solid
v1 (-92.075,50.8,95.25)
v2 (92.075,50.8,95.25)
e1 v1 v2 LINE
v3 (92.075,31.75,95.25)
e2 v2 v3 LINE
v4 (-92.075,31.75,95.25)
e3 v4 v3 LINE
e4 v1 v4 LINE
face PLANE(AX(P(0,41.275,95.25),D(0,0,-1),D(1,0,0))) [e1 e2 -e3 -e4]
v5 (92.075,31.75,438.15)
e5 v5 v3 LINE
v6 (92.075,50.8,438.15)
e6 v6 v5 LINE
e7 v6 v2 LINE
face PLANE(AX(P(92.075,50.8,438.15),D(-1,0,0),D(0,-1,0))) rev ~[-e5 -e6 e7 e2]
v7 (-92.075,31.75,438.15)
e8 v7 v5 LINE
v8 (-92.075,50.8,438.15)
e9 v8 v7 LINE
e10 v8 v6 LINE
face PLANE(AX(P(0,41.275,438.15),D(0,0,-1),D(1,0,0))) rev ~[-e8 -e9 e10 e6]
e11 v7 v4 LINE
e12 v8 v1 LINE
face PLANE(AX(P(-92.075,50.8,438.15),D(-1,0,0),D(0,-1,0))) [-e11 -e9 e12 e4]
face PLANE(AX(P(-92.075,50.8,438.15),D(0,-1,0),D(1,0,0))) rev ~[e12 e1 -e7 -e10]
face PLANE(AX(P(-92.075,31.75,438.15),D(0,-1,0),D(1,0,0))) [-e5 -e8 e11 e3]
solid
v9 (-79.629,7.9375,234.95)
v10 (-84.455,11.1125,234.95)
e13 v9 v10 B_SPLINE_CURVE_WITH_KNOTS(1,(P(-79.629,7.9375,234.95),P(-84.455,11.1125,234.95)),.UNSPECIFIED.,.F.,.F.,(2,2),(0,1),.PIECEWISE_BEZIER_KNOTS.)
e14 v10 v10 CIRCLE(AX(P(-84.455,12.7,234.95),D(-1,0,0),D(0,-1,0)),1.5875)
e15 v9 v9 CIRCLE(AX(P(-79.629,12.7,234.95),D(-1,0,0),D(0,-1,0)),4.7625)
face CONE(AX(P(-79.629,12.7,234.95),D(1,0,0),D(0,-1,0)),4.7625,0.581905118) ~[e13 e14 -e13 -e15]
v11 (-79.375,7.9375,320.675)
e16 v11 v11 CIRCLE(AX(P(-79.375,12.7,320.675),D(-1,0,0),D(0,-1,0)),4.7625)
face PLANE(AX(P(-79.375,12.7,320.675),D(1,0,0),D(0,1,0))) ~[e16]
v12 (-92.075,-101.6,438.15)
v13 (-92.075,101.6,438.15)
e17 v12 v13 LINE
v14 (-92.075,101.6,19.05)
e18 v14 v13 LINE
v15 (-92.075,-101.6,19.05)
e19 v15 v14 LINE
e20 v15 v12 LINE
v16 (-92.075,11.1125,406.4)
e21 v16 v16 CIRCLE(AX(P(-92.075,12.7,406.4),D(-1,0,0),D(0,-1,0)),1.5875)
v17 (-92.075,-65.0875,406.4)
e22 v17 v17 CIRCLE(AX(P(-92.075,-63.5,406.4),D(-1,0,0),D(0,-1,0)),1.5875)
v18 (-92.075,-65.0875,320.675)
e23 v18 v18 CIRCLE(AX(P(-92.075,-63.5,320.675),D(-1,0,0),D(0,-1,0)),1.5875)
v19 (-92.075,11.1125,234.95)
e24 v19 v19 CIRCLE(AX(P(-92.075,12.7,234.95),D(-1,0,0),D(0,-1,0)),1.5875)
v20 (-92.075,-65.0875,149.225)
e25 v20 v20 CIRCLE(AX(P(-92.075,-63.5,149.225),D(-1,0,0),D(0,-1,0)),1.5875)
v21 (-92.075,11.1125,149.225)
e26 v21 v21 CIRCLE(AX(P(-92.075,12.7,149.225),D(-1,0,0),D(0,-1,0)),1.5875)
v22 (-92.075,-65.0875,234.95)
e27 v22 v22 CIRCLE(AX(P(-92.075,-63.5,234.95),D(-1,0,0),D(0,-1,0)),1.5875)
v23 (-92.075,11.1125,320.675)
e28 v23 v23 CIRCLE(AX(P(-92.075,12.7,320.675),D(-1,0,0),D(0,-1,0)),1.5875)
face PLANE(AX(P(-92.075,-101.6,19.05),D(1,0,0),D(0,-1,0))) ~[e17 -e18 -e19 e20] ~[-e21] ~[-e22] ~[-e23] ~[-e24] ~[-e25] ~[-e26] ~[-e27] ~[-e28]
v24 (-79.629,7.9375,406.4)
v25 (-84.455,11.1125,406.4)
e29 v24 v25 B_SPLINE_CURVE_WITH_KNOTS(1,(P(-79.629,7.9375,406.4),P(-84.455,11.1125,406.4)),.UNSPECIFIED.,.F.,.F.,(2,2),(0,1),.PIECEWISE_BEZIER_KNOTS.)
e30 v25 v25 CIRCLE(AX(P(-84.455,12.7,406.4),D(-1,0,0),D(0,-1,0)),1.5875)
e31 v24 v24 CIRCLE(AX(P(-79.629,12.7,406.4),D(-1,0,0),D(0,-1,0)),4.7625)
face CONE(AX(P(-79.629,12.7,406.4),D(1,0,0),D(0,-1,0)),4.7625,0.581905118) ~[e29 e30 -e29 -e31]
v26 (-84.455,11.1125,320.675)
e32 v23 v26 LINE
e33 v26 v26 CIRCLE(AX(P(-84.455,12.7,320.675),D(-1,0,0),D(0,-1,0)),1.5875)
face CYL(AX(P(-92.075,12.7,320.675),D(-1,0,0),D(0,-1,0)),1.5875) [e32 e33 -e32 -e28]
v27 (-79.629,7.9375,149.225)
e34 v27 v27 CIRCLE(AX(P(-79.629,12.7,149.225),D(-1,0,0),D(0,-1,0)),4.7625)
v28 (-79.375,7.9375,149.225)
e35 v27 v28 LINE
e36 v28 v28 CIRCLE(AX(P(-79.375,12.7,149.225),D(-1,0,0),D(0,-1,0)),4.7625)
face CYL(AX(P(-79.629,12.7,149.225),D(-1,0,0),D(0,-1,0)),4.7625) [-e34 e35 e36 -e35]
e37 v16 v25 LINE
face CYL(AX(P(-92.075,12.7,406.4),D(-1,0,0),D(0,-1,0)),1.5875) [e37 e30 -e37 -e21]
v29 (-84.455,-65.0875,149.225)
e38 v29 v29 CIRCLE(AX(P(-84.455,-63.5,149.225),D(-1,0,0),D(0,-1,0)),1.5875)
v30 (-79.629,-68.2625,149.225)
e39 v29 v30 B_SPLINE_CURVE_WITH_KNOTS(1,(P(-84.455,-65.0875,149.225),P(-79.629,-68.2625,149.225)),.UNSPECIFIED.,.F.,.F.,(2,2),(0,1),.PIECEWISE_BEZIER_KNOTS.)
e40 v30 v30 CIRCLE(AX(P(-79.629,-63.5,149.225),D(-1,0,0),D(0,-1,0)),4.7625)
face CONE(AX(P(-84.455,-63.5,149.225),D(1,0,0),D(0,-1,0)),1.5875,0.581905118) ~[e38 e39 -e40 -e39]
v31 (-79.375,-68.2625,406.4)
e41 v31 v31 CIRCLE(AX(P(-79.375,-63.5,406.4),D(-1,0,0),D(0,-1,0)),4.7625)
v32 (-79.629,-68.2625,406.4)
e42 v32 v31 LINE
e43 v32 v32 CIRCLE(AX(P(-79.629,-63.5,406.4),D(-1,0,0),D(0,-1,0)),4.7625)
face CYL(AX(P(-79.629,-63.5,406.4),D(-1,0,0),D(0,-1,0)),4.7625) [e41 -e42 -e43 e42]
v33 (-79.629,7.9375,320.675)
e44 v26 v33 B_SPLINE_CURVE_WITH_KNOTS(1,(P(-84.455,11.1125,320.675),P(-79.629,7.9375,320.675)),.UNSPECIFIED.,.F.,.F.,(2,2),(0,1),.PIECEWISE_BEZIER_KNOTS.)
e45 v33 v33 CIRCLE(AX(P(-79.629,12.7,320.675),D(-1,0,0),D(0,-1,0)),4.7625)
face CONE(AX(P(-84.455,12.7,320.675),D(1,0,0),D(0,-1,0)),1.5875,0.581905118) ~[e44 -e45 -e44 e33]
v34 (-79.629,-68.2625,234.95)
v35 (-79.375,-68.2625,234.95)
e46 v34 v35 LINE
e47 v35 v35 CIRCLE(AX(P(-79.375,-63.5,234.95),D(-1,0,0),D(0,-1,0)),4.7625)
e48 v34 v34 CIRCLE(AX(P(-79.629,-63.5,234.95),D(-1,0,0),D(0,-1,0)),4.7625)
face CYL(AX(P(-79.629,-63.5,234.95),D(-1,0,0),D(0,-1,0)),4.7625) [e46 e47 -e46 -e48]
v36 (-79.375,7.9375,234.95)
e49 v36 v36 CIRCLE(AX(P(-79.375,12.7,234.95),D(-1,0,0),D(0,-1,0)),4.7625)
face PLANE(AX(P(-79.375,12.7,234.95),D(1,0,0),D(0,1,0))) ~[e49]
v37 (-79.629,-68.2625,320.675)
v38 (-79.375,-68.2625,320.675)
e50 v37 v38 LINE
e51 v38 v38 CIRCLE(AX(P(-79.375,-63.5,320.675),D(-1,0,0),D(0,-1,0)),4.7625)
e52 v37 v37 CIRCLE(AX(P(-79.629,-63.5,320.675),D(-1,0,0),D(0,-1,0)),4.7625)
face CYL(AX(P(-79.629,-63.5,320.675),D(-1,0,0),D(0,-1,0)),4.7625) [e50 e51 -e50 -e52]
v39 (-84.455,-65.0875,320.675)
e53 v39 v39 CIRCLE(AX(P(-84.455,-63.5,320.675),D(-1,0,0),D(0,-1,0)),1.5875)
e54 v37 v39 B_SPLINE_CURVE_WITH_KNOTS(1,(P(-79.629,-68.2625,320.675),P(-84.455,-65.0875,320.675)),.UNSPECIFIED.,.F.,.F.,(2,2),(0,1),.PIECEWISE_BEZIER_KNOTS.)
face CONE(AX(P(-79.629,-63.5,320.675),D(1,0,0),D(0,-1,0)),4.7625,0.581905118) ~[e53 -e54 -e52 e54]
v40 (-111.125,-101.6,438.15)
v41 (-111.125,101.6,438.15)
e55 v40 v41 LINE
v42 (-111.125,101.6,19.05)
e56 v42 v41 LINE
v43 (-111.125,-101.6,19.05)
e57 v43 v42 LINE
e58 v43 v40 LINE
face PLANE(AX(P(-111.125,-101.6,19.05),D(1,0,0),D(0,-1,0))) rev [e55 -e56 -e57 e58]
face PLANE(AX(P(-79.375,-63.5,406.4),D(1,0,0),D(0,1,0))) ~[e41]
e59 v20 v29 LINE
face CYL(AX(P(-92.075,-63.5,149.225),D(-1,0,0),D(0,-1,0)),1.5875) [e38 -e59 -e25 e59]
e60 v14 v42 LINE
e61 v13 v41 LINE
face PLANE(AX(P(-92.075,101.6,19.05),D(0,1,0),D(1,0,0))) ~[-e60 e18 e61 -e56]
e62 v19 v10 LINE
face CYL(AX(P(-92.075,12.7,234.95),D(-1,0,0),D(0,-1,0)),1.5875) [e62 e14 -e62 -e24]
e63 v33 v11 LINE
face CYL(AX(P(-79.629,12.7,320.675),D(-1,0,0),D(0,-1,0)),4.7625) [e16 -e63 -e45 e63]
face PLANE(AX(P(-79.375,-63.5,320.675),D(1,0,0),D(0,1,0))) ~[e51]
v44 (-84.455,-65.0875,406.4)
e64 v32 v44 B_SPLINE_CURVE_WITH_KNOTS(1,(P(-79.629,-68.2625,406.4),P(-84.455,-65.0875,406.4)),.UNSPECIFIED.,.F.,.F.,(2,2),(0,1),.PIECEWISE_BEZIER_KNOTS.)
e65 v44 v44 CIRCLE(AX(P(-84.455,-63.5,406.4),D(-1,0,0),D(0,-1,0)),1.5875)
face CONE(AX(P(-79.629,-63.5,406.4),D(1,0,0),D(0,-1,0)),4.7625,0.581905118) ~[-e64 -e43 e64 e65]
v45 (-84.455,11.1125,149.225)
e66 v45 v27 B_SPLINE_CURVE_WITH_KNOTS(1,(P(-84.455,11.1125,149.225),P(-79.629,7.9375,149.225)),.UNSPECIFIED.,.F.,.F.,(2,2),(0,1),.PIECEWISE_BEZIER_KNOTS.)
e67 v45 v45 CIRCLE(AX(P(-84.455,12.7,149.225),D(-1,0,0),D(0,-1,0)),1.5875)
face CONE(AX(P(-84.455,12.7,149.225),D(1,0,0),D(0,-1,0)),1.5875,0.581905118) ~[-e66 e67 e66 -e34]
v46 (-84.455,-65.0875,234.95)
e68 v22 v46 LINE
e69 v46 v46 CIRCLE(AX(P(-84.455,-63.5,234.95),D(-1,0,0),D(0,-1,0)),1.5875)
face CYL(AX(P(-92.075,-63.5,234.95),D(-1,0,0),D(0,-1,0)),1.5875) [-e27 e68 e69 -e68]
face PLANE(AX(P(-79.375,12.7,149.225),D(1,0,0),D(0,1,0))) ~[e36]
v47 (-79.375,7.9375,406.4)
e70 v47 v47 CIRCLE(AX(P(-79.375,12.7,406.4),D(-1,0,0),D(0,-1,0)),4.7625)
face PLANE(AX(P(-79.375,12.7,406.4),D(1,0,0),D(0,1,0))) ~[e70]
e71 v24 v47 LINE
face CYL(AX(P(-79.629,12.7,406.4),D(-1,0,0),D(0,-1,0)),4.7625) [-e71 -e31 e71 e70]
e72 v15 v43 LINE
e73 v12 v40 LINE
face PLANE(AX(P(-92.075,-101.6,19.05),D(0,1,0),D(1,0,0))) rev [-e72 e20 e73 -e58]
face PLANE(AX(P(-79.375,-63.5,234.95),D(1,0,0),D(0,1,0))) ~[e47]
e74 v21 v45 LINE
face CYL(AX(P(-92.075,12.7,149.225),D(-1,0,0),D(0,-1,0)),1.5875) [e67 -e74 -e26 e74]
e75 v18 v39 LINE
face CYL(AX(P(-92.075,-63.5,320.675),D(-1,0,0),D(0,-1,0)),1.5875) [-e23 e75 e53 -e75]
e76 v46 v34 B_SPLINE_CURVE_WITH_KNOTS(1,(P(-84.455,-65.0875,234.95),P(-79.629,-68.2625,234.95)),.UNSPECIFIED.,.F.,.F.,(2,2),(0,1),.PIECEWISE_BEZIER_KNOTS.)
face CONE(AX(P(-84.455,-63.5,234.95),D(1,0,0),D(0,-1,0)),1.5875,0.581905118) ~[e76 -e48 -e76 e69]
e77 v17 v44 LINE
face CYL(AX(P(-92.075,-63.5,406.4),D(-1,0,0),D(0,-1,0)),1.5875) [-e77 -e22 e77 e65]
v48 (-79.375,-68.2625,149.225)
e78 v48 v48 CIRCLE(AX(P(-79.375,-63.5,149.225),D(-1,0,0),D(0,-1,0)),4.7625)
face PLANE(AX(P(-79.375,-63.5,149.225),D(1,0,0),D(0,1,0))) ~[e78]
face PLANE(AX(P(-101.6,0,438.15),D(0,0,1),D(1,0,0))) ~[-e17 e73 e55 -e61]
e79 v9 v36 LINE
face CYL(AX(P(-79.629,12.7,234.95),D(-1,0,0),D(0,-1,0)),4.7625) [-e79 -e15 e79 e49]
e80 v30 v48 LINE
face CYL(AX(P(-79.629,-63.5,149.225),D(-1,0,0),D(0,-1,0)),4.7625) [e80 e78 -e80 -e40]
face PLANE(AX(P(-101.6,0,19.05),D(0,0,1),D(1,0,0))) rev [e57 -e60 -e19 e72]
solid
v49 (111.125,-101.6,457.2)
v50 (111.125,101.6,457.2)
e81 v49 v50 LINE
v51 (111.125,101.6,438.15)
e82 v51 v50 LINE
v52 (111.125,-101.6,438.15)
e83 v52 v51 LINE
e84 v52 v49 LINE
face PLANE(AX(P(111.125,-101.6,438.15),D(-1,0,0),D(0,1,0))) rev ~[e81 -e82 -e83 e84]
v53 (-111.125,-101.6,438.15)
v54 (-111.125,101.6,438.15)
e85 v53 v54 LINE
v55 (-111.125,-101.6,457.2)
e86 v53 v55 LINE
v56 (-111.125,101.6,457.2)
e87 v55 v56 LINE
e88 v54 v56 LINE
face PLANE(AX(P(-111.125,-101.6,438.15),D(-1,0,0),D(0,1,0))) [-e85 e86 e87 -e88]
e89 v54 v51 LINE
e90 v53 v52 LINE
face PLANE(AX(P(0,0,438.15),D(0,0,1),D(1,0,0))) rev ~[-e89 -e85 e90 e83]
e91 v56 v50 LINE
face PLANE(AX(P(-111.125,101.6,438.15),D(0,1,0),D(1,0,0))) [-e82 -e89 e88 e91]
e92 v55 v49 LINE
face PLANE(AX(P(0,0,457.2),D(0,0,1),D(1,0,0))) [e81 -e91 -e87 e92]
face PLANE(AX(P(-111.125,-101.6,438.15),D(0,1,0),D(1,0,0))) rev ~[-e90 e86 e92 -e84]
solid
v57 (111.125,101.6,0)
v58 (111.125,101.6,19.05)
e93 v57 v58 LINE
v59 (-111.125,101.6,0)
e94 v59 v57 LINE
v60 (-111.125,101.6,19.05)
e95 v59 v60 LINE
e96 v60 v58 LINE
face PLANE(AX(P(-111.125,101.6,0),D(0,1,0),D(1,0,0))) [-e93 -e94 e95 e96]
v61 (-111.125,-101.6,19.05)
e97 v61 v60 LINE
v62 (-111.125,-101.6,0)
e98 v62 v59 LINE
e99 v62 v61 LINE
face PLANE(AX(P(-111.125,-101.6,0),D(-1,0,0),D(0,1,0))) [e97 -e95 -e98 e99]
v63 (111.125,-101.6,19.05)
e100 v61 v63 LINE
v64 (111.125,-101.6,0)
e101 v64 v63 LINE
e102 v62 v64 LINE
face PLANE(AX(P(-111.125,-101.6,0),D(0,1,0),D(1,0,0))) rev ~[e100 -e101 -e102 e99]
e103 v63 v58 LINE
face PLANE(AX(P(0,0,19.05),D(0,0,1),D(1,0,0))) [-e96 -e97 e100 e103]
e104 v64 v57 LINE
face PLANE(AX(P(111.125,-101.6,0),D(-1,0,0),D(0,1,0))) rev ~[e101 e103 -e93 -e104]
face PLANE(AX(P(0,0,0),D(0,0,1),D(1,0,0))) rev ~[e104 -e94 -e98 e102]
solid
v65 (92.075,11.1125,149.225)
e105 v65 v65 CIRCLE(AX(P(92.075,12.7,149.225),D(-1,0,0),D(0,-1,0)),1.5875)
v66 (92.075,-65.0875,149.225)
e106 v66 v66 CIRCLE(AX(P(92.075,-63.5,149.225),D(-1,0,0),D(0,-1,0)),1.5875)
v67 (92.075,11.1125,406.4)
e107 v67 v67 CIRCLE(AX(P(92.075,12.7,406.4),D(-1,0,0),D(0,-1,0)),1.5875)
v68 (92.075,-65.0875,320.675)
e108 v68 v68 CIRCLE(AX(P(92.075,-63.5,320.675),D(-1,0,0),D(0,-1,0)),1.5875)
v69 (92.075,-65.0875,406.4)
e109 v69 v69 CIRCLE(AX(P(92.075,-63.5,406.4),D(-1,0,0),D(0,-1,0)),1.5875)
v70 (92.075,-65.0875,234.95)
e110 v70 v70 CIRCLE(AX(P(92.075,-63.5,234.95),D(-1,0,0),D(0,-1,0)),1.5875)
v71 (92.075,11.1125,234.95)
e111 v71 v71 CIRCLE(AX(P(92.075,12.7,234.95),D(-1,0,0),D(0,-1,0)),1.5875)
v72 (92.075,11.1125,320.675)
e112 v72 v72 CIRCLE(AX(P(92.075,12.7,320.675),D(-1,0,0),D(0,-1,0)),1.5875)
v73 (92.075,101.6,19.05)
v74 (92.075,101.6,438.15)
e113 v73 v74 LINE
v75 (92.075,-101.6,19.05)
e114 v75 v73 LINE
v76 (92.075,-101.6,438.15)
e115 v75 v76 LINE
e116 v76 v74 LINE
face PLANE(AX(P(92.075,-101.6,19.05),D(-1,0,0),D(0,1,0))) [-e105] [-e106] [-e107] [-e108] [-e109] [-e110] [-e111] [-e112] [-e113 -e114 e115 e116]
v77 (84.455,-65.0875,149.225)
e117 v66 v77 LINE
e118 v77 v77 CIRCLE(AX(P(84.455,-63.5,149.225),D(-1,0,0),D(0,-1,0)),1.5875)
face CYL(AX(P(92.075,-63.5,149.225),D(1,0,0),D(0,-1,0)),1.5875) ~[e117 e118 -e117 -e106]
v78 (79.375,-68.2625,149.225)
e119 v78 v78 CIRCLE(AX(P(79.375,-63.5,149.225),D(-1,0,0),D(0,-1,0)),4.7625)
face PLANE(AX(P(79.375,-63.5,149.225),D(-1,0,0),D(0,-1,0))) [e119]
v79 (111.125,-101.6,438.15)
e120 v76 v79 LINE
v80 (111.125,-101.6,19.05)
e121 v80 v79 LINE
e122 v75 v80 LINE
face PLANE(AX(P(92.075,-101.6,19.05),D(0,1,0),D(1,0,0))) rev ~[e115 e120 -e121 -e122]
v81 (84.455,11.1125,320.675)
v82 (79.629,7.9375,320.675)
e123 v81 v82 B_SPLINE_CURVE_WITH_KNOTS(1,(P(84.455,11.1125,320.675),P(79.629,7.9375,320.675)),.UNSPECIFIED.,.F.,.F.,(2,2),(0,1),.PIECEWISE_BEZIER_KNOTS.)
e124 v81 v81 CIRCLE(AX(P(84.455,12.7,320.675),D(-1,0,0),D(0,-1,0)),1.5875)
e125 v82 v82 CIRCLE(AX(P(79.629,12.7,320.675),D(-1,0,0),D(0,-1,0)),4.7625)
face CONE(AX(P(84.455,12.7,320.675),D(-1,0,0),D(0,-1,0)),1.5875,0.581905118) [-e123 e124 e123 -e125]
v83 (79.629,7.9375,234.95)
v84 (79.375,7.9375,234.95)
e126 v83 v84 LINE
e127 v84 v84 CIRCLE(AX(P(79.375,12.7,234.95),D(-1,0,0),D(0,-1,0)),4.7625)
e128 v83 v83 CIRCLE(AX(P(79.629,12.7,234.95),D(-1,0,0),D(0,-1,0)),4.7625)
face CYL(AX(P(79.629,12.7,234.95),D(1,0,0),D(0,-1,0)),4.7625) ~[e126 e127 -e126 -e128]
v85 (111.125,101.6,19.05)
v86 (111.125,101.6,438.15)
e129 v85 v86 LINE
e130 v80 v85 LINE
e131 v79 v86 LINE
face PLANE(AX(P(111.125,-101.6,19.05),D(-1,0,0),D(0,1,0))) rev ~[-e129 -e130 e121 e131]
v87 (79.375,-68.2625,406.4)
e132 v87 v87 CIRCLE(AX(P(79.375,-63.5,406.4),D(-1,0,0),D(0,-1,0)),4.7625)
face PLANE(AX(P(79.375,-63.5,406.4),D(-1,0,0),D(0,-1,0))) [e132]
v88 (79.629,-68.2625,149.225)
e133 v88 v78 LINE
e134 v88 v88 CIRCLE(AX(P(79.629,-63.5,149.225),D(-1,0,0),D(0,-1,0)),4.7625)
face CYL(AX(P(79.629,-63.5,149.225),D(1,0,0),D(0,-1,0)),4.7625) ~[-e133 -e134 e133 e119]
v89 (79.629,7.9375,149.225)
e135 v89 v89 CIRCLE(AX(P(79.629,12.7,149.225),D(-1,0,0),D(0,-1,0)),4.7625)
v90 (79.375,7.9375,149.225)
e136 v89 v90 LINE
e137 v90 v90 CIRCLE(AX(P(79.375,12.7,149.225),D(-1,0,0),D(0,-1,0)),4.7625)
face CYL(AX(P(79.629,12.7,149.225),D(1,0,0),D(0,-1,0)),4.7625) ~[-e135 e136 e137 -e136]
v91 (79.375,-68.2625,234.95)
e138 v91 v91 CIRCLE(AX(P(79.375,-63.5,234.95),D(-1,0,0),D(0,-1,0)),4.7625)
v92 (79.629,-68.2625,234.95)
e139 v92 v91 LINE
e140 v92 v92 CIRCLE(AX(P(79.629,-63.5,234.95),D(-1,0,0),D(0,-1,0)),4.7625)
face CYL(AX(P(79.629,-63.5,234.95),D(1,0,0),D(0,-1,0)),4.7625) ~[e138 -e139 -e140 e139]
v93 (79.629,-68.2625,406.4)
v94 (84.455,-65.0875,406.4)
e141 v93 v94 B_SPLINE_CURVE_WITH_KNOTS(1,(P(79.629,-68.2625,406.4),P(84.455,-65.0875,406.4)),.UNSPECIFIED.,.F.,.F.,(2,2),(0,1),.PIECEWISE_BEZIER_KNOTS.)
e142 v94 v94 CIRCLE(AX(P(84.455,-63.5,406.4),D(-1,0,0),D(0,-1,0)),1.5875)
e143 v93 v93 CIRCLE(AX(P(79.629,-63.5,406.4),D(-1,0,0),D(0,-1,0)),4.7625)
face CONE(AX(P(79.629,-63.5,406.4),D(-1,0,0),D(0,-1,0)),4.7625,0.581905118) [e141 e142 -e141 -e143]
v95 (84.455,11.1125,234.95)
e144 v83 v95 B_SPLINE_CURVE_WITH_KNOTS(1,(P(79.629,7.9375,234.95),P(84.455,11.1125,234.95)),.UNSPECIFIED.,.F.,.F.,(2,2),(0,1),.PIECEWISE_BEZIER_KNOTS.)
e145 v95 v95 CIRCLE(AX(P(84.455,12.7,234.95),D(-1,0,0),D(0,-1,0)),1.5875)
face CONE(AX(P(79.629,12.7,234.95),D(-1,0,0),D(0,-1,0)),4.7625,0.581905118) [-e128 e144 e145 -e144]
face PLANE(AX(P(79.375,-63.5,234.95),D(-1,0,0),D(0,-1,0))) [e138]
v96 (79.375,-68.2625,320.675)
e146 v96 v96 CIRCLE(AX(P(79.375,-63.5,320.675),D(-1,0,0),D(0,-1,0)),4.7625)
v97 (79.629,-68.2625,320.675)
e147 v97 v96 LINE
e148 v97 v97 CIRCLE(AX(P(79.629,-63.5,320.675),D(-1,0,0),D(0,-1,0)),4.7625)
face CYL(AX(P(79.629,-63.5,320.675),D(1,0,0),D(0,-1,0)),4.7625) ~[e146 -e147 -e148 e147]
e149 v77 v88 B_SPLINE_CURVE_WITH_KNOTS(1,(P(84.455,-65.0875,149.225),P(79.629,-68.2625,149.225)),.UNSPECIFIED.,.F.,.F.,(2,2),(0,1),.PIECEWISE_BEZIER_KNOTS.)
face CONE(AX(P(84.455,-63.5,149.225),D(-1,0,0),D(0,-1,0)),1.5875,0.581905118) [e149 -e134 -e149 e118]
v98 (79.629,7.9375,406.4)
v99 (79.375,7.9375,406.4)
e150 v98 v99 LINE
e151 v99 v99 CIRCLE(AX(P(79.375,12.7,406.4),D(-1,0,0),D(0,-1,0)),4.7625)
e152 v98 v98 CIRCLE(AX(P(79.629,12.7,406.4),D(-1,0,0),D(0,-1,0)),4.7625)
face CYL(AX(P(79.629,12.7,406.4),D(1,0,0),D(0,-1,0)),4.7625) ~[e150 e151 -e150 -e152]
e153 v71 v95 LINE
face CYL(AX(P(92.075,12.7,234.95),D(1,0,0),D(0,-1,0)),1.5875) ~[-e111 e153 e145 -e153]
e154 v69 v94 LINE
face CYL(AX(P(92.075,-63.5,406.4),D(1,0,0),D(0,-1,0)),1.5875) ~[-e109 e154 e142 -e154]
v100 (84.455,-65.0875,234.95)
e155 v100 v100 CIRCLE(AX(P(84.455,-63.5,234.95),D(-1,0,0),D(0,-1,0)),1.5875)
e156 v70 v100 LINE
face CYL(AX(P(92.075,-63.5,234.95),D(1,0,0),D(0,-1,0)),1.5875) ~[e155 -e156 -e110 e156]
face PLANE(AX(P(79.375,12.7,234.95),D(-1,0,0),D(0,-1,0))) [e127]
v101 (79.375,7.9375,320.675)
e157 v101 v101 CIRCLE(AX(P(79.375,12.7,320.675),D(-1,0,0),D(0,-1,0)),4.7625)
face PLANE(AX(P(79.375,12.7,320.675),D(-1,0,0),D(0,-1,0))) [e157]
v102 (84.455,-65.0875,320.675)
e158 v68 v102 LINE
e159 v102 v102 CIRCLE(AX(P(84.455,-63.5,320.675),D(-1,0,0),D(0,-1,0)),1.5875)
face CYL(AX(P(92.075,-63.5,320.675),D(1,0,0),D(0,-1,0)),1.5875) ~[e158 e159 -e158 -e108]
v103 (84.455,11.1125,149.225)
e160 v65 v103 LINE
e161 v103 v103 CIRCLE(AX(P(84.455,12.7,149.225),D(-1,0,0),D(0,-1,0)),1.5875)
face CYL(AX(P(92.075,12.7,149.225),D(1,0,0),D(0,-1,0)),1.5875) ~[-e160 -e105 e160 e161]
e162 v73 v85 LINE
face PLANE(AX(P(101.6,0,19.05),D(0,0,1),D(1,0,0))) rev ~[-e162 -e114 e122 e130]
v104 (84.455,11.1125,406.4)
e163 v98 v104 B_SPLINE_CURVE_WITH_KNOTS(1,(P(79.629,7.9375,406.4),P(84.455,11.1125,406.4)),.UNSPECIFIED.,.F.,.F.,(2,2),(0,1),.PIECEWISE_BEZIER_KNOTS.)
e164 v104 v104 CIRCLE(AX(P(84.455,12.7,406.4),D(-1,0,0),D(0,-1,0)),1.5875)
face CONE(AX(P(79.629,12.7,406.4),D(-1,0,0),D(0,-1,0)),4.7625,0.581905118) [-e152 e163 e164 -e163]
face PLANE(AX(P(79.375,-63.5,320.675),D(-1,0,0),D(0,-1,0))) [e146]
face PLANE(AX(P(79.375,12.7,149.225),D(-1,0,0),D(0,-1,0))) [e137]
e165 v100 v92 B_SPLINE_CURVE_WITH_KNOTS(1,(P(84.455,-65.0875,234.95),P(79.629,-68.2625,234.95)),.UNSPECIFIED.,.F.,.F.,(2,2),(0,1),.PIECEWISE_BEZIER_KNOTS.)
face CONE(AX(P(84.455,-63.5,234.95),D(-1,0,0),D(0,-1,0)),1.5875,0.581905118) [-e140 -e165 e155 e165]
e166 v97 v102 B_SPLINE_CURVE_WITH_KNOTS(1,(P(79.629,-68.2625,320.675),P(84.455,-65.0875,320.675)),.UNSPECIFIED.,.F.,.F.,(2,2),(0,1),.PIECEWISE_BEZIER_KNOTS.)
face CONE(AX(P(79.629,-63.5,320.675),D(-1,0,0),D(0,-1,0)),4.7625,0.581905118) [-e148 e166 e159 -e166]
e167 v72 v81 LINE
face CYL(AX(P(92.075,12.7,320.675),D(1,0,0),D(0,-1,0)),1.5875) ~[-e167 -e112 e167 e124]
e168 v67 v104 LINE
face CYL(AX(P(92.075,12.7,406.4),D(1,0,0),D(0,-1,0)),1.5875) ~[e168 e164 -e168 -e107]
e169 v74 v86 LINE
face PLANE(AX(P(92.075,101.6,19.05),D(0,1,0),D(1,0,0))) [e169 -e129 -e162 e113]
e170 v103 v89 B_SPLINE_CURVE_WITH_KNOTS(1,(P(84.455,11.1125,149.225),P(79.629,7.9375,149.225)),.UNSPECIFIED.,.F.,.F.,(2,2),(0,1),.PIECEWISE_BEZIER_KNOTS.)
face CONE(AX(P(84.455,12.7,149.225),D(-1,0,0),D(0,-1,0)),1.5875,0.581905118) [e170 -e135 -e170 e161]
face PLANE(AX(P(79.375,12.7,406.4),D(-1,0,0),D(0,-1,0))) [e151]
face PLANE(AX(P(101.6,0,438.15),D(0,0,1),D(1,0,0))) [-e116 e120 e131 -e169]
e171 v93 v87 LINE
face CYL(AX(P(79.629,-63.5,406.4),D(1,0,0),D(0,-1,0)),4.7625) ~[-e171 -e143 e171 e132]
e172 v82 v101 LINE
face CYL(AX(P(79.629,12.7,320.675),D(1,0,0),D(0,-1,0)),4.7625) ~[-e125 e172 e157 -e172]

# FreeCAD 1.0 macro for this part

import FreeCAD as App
import Part
import Sketcher
Q = App.Units.Quantity

doc = App.newDocument("Part")
body = doc.addObject("PartDesign::Body", "Body")

sketch1 = body.newObject("Sketcher::SketchObject", "Sketch")
sketch1.AttachmentSupport = (doc.getObject("XY_Plane"), [""])
sketch1.MapMode = "FlatFace"
sketch1.addGeometry([
    Part.LineSegment(App.Vector(-111, 102, 0), App.Vector(-111, -102, 0)),
    Part.LineSegment(App.Vector(-111, -102, 0), App.Vector(111, -102, 0)),
    Part.LineSegment(App.Vector(111, -102, 0), App.Vector(111, 102, 0)),
    Part.LineSegment(App.Vector(111, 102, 0), App.Vector(-111, 102, 0)),
], False)
sketch1.addConstraint([
    Sketcher.Constraint("Coincident", 0, 2, 1, 1),
    Sketcher.Constraint("Coincident", 1, 2, 2, 1),
    Sketcher.Constraint("Coincident", 2, 2, 3, 1),
    Sketcher.Constraint("Coincident", 3, 2, 0, 1),
    Sketcher.Constraint("Vertical", 0),
    Sketcher.Constraint("Horizontal", 1),
    Sketcher.Constraint("Vertical", 2),
    Sketcher.Constraint("Horizontal", 3),
    Sketcher.Constraint("Symmetric", 0, 2, 2, 2, -1, 1),
    Sketcher.Constraint("DistanceY", 0, 2, 0, 1, Q("8 in")),
    Sketcher.Constraint("DistanceX", 1, 1, 1, 2, Q("8.75 in")),
])
pad1 = body.newObject("PartDesign::Pad", "Pad")
pad1.Profile = sketch1
pad1.Length = Q("0.75 in")
body2 = doc.addObject("PartDesign::Body", "Body001")

sketch2 = body2.newObject("Sketcher::SketchObject", "Sketch001")
sketch2.AttachmentSupport = (doc.getObject("XY_Plane001"), [""])
sketch2.MapMode = "FlatFace"
sketch2.AttachmentOffset = App.Placement(App.Vector(0, 0, 0.75 * 25.4), App.Rotation())
sketch2.addGeometry([
    Part.LineSegment(App.Vector(-111, 102, 0), App.Vector(-111, -102, 0)),
    Part.LineSegment(App.Vector(-111, -102, 0), App.Vector(-92, -102, 0)),
    Part.LineSegment(App.Vector(-92, -102, 0), App.Vector(-92, 102, 0)),
    Part.LineSegment(App.Vector(-92, 102, 0), App.Vector(-111, 102, 0)),
], False)
sketch2.addConstraint([
    Sketcher.Constraint("Coincident", 0, 2, 1, 1),
    Sketcher.Constraint("Coincident", 1, 2, 2, 1),
    Sketcher.Constraint("Coincident", 2, 2, 3, 1),
    Sketcher.Constraint("Coincident", 3, 2, 0, 1),
    Sketcher.Constraint("Vertical", 0),
    Sketcher.Constraint("Horizontal", 1),
    Sketcher.Constraint("Vertical", 2),
    Sketcher.Constraint("Horizontal", 3),
    Sketcher.Constraint("DistanceY", 0, 2, 0, 1, Q("8 in")),
    Sketcher.Constraint("DistanceY", 0, 2, -1, 1, Q("4 in")),
    Sketcher.Constraint("DistanceX", 1, 1, 1, 2, Q("0.75 in")),
    Sketcher.Constraint("DistanceX", 0, 2, -1, 1, Q("4.375 in")),
])
pad2 = body2.newObject("PartDesign::Pad", "Pad001")
pad2.Profile = sketch2
pad2.Length = Q("16.5 in")
body3 = doc.addObject("PartDesign::Body", "Body002")

sketch3 = body3.newObject("Sketcher::SketchObject", "Sketch002")
sketch3.AttachmentSupport = (doc.getObject("XY_Plane002"), [""])
sketch3.MapMode = "FlatFace"
sketch3.AttachmentOffset = App.Placement(App.Vector(0, 0, 0.75 * 25.4), App.Rotation())
sketch3.addGeometry([
    Part.LineSegment(App.Vector(92, 102, 0), App.Vector(92, -102, 0)),
    Part.LineSegment(App.Vector(92, -102, 0), App.Vector(111, -102, 0)),
    Part.LineSegment(App.Vector(111, -102, 0), App.Vector(111, 102, 0)),
    Part.LineSegment(App.Vector(111, 102, 0), App.Vector(92, 102, 0)),
], False)
sketch3.addConstraint([
    Sketcher.Constraint("Coincident", 0, 2, 1, 1),
    Sketcher.Constraint("Coincident", 1, 2, 2, 1),
    Sketcher.Constraint("Coincident", 2, 2, 3, 1),
    Sketcher.Constraint("Coincident", 3, 2, 0, 1),
    Sketcher.Constraint("Vertical", 0),
    Sketcher.Constraint("Horizontal", 1),
    Sketcher.Constraint("Vertical", 2),
    Sketcher.Constraint("Horizontal", 3),
    Sketcher.Constraint("DistanceY", 0, 2, 0, 1, Q("8 in")),
    Sketcher.Constraint("DistanceY", 0, 2, -1, 1, Q("4 in")),
    Sketcher.Constraint("DistanceX", 1, 1, 1, 2, Q("0.75 in")),
    Sketcher.Constraint("DistanceX", -1, 1, 0, 2, Q("3.625 in")),
])
pad3 = body3.newObject("PartDesign::Pad", "Pad002")
pad3.Profile = sketch3
pad3.Length = Q("16.5 in")

sketch4 = body3.newObject("Sketcher::SketchObject", "Sketch003")
sketch4.AttachmentSupport = (doc.getObject("YZ_Plane002"), [""])
sketch4.MapMode = "FlatFace"
sketch4.AttachmentOffset = App.Placement(App.Vector(0, 0, 3.625 * 25.4), App.Rotation())
sketch4.addGeometry([
    Part.Circle(App.Vector(12.7, 406.4, 0), App.Vector(0, 0, 1), 1.6),
    Part.Circle(App.Vector(-63.5, 406.4, 0), App.Vector(0, 0, 1), 1.6),
    Part.Circle(App.Vector(12.7, 320.7, 0), App.Vector(0, 0, 1), 1.6),
    Part.Circle(App.Vector(-63.5, 320.7, 0), App.Vector(0, 0, 1), 1.6),
    Part.Circle(App.Vector(12.7, 234.9, 0), App.Vector(0, 0, 1), 1.6),
    Part.Circle(App.Vector(-63.5, 234.9, 0), App.Vector(0, 0, 1), 1.6),
    Part.Circle(App.Vector(12.7, 149.2, 0), App.Vector(0, 0, 1), 1.6),
    Part.Circle(App.Vector(-63.5, 149.2, 0), App.Vector(0, 0, 1), 1.6),
], False)
sketch4.addConstraint([
    Sketcher.Constraint("Equal", 0, 1),
    Sketcher.Constraint("Equal", 1, 2),
    Sketcher.Constraint("Equal", 2, 3),
    Sketcher.Constraint("Equal", 3, 4),
    Sketcher.Constraint("Equal", 4, 5),
    Sketcher.Constraint("Equal", 5, 6),
    Sketcher.Constraint("Equal", 6, 7),
    Sketcher.Constraint("Horizontal", 0, 3, 1, 3),
    Sketcher.Constraint("Horizontal", 2, 3, 3, 3),
    Sketcher.Constraint("Horizontal", 4, 3, 5, 3),
    Sketcher.Constraint("Horizontal", 6, 3, 7, 3),
    Sketcher.Constraint("Vertical", 0, 3, 2, 3),
    Sketcher.Constraint("Vertical", 1, 3, 3, 3),
    Sketcher.Constraint("Vertical", 2, 3, 4, 3),
    Sketcher.Constraint("Vertical", 3, 3, 5, 3),
    Sketcher.Constraint("Vertical", 4, 3, 6, 3),
    Sketcher.Constraint("Vertical", 5, 3, 7, 3),
    Sketcher.Constraint("Diameter", 0, Q("0.125 in")),
    Sketcher.Constraint("DistanceY", -1, 1, 0, 3, Q("16 in")),
    Sketcher.Constraint("DistanceX", 1, 3, 0, 3, Q("3 in")),
    Sketcher.Constraint("DistanceX", -1, 1, 0, 3, Q("0.5 in")),
    Sketcher.Constraint("DistanceY", -1, 1, 4, 3, Q("9.25 in")),
    Sketcher.Constraint("DistanceY", 6, 3, 2, 3, Q("6.75 in")),
    Sketcher.Constraint("DistanceY", -1, 1, 2, 3, Q("12.625 in")),
])
pad4 = body3.newObject("PartDesign::Pad", "Pad003")
pad4.Profile = sketch4
pad4.Length = Q("0.3 in")
pad4.Reversed = True
body4 = doc.addObject("PartDesign::Body", "Body003")

sketch5 = body4.newObject("Sketcher::SketchObject", "Sketch004")
sketch5.AttachmentSupport = (doc.getObject("XY_Plane003"), [""])
sketch5.MapMode = "FlatFace"
sketch5.AttachmentOffset = App.Placement(App.Vector(0, 0, 17.25 * 25.4), App.Rotation())
sketch5.addGeometry([
    Part.LineSegment(App.Vector(-111, 102, 0), App.Vector(-111, -102, 0)),
    Part.LineSegment(App.Vector(-111, -102, 0), App.Vector(111, -102, 0)),
    Part.LineSegment(App.Vector(111, -102, 0), App.Vector(111, 102, 0)),
    Part.LineSegment(App.Vector(111, 102, 0), App.Vector(-111, 102, 0)),
], False)
sketch5.addConstraint([
    Sketcher.Constraint("Coincident", 0, 2, 1, 1),
    Sketcher.Constraint("Coincident", 1, 2, 2, 1),
    Sketcher.Constraint("Coincident", 2, 2, 3, 1),
    Sketcher.Constraint("Coincident", 3, 2, 0, 1),
    Sketcher.Constraint("Vertical", 0),
    Sketcher.Constraint("Horizontal", 1),
    Sketcher.Constraint("Vertical", 2),
    Sketcher.Constraint("Horizontal", 3),
    Sketcher.Constraint("Symmetric", 0, 2, 2, 2, -1, 1),
    Sketcher.Constraint("DistanceY", 0, 2, 0, 1, Q("8 in")),
    Sketcher.Constraint("DistanceX", 1, 1, 1, 2, Q("8.75 in")),
])
pad5 = body4.newObject("PartDesign::Pad", "Pad004")
pad5.Profile = sketch5
pad5.Length = Q("0.75 in")
body5 = doc.addObject("PartDesign::Body", "Body004")

sketch6 = body5.newObject("Sketcher::SketchObject", "Sketch005")
sketch6.AttachmentSupport = (doc.getObject("XY_Plane004"), [""])
sketch6.MapMode = "FlatFace"
sketch6.AttachmentOffset = App.Placement(App.Vector(0, 0, 17.25 * 25.4), App.Rotation())
sketch6.addGeometry([
    Part.LineSegment(App.Vector(-92, 32, 0), App.Vector(-92, 51, 0)),
    Part.LineSegment(App.Vector(-92, 51, 0), App.Vector(92, 51, 0)),
    Part.LineSegment(App.Vector(92, 51, 0), App.Vector(92, 32, 0)),
    Part.LineSegment(App.Vector(92, 32, 0), App.Vector(-92, 32, 0)),
], False)
sketch6.addConstraint([
    Sketcher.Constraint("Coincident", 0, 2, 1, 1),
    Sketcher.Constraint("Coincident", 1, 2, 2, 1),
    Sketcher.Constraint("Coincident", 2, 2, 3, 1),
    Sketcher.Constraint("Coincident", 3, 2, 0, 1),
    Sketcher.Constraint("Vertical", 0),
    Sketcher.Constraint("Horizontal", 1),
    Sketcher.Constraint("Vertical", 2),
    Sketcher.Constraint("Horizontal", 3),
    Sketcher.Constraint("DistanceY", -1, 1, 0, 2, Q("2 in")),
    Sketcher.Constraint("DistanceX", 1, 1, 1, 2, Q("7.25 in")),
    Sketcher.Constraint("DistanceY", 0, 1, 0, 2, Q("0.75 in")),
    Sketcher.Constraint("DistanceX", 0, 2, -1, 1, Q("3.625 in")),
])
pad6 = body5.newObject("PartDesign::Pad", "Pad005")
pad6.Profile = sketch6
pad6.Length = Q("13.5 in")
pad6.Reversed = True
body6 = doc.addObject("PartDesign::Body", "Body005")

sketch7 = body6.newObject("Sketcher::SketchObject", "Sketch006")
sketch7.AttachmentSupport = (doc.getObject("YZ_Plane005"), [""])
sketch7.MapMode = "FlatFace"
sketch7.AttachmentOffset = App.Placement(App.Vector(0, 0, 3.135 * 25.4), App.Rotation())
sketch7.addGeometry(Part.Circle(App.Vector(12.7, 406.4, 0), App.Vector(0, 0, 1), 4.8), False)
sketch7.addConstraint([
    Sketcher.Constraint("Diameter", 0, Q("0.375 in")),
    Sketcher.Constraint("DistanceY", -1, 1, 0, 3, Q("16 in")),
    Sketcher.Constraint("DistanceX", -1, 1, 0, 3, Q("0.5 in")),
])
pad7 = body6.newObject("PartDesign::Pad", "Pad006")
pad7.Profile = sketch7
pad7.Length = Q("0.01 in")
pad7.Reversed = True
body7 = doc.addObject("PartDesign::Body", "Body006")

sketch8 = body7.newObject("Sketcher::SketchObject", "Sketch007")
sketch8.AttachmentSupport = (doc.getObject("YZ_Plane006"), [""])
sketch8.MapMode = "FlatFace"
sketch8.AttachmentOffset = App.Placement(App.Vector(0, 0, 3.135 * 25.4), App.Rotation())
sketch8.addGeometry(Part.Circle(App.Vector(-63.5, 406.4, 0), App.Vector(0, 0, 1), 4.8), False)
sketch8.addConstraint([
    Sketcher.Constraint("Diameter", 0, Q("0.375 in")),
    Sketcher.Constraint("DistanceY", -1, 1, 0, 3, Q("16 in")),
    Sketcher.Constraint("DistanceX", 0, 3, -1, 1, Q("2.5 in")),
])
pad8 = body7.newObject("PartDesign::Pad", "Pad007")
pad8.Profile = sketch8
pad8.Length = Q("0.01 in")
pad8.Reversed = True
body8 = doc.addObject("PartDesign::Body", "Body007")

sketch9 = body8.newObject("Sketcher::SketchObject", "Sketch008")
sketch9.AttachmentSupport = (doc.getObject("YZ_Plane007"), [""])
sketch9.MapMode = "FlatFace"
sketch9.AttachmentOffset = App.Placement(App.Vector(0, 0, 3.135 * 25.4), App.Rotation())
sketch9.addGeometry(Part.Circle(App.Vector(-63.5, 320.7, 0), App.Vector(0, 0, 1), 4.8), False)
sketch9.addConstraint([
    Sketcher.Constraint("Diameter", 0, Q("0.375 in")),
    Sketcher.Constraint("DistanceX", 0, 3, -1, 1, Q("2.5 in")),
    Sketcher.Constraint("DistanceY", -1, 1, 0, 3, Q("12.625 in")),
])
pad9 = body8.newObject("PartDesign::Pad", "Pad008")
pad9.Profile = sketch9
pad9.Length = Q("0.01 in")
pad9.Reversed = True
body9 = doc.addObject("PartDesign::Body", "Body008")

sketch10 = body9.newObject("Sketcher::SketchObject", "Sketch009")
sketch10.AttachmentSupport = (doc.getObject("YZ_Plane008"), [""])
sketch10.MapMode = "FlatFace"
sketch10.AttachmentOffset = App.Placement(App.Vector(0, 0, 3.135 * 25.4), App.Rotation())
sketch10.addGeometry(Part.Circle(App.Vector(12.7, 320.7, 0), App.Vector(0, 0, 1), 4.8), False)
sketch10.addConstraint([
    Sketcher.Constraint("Diameter", 0, Q("0.375 in")),
    Sketcher.Constraint("DistanceX", -1, 1, 0, 3, Q("0.5 in")),
    Sketcher.Constraint("DistanceY", -1, 1, 0, 3, Q("12.625 in")),
])
pad10 = body9.newObject("PartDesign::Pad", "Pad009")
pad10.Profile = sketch10
pad10.Length = Q("0.01 in")
pad10.Reversed = True
body10 = doc.addObject("PartDesign::Body", "Body009")

sketch11 = body10.newObject("Sketcher::SketchObject", "Sketch010")
sketch11.AttachmentSupport = (doc.getObject("YZ_Plane009"), [""])
sketch11.MapMode = "FlatFace"
sketch11.AttachmentOffset = App.Placement(App.Vector(0, 0, 3.135 * 25.4), App.Rotation())
sketch11.addGeometry(Part.Circle(App.Vector(12.7, 234.9, 0), App.Vector(0, 0, 1), 4.8), False)
sketch11.addConstraint([
    Sketcher.Constraint("Diameter", 0, Q("0.375 in")),
    Sketcher.Constraint("DistanceX", -1, 1, 0, 3, Q("0.5 in")),
    Sketcher.Constraint("DistanceY", -1, 1, 0, 3, Q("9.25 in")),
])
pad11 = body10.newObject("PartDesign::Pad", "Pad010")
pad11.Profile = sketch11
pad11.Length = Q("0.01 in")
pad11.Reversed = True
body11 = doc.addObject("PartDesign::Body", "Body010")

sketch12 = body11.newObject("Sketcher::SketchObject", "Sketch011")
sketch12.AttachmentSupport = (doc.getObject("YZ_Plane010"), [""])
sketch12.MapMode = "FlatFace"
sketch12.AttachmentOffset = App.Placement(App.Vector(0, 0, 3.135 * 25.4), App.Rotation())
sketch12.addGeometry(Part.Circle(App.Vector(-63.5, 234.9, 0), App.Vector(0, 0, 1), 4.8), False)
sketch12.addConstraint([
    Sketcher.Constraint("Diameter", 0, Q("0.375 in")),
    Sketcher.Constraint("DistanceX", 0, 3, -1, 1, Q("2.5 in")),
    Sketcher.Constraint("DistanceY", -1, 1, 0, 3, Q("9.25 in")),
])
pad12 = body11.newObject("PartDesign::Pad", "Pad011")
pad12.Profile = sketch12
pad12.Length = Q("0.01 in")
pad12.Reversed = True
body12 = doc.addObject("PartDesign::Body", "Body011")

sketch13 = body12.newObject("Sketcher::SketchObject", "Sketch012")
sketch13.AttachmentSupport = (doc.getObject("YZ_Plane011"), [""])
sketch13.MapMode = "FlatFace"
sketch13.AttachmentOffset = App.Placement(App.Vector(0, 0, 3.135 * 25.4), App.Rotation())
sketch13.addGeometry(Part.Circle(App.Vector(12.7, 149.2, 0), App.Vector(0, 0, 1), 4.8), False)
sketch13.addConstraint([
    Sketcher.Constraint("Diameter", 0, Q("0.375 in")),
    Sketcher.Constraint("DistanceX", -1, 1, 0, 3, Q("0.5 in")),
    Sketcher.Constraint("DistanceY", -1, 1, 0, 3, Q("5.875 in")),
])
pad13 = body12.newObject("PartDesign::Pad", "Pad012")
pad13.Profile = sketch13
pad13.Length = Q("0.01 in")
pad13.Reversed = True
body13 = doc.addObject("PartDesign::Body", "Body012")

sketch14 = body13.newObject("Sketcher::SketchObject", "Sketch013")
sketch14.AttachmentSupport = (doc.getObject("YZ_Plane012"), [""])
sketch14.MapMode = "FlatFace"
sketch14.AttachmentOffset = App.Placement(App.Vector(0, 0, 3.135 * 25.4), App.Rotation())
sketch14.addGeometry(Part.Circle(App.Vector(-63.5, 149.2, 0), App.Vector(0, 0, 1), 4.8), False)
sketch14.addConstraint([
    Sketcher.Constraint("Diameter", 0, Q("0.375 in")),
    Sketcher.Constraint("DistanceX", 0, 3, -1, 1, Q("2.5 in")),
    Sketcher.Constraint("DistanceY", -1, 1, 0, 3, Q("5.875 in")),
])
pad14 = body13.newObject("PartDesign::Pad", "Pad013")
pad14.Profile = sketch14
pad14.Length = Q("0.01 in")
pad14.Reversed = True
body3.AllowCompound = True
doc.recompute()

boolean = body3.newObject("PartDesign::Boolean", "Boolean")
boolean.Type = "Fuse"
boolean.addObjects([body7])

sketch15 = body3.newObject("Sketcher::SketchObject", "Sketch014")
sketch15.AttachmentSupport = (doc.getObject("YZ_Plane002"), [""])
sketch15.MapMode = "FlatFace"
sketch15.AttachmentOffset = App.Placement(App.Vector(0, 0, 3.135 * 25.4), App.Rotation())
sketch15.addGeometry(Part.Circle(App.Vector(-63.5, 406.4, 0), App.Vector(0, 0, 1), 4.8), False)
sketch15.addConstraint([
    Sketcher.Constraint("Diameter", 0, Q("0.375 in")),
    Sketcher.Constraint("DistanceY", -1, 1, 0, 3, Q("16 in")),
    Sketcher.Constraint("DistanceX", 0, 3, -1, 1, Q("2.5 in")),
])

sketch16 = body3.newObject("Sketcher::SketchObject", "Sketch015")
sketch16.AttachmentSupport = (doc.getObject("YZ_Plane002"), [""])
sketch16.MapMode = "FlatFace"
sketch16.AttachmentOffset = App.Placement(App.Vector(0, 0, 3.325 * 25.4), App.Rotation())
sketch16.addGeometry(Part.Circle(App.Vector(-63.5, 406.4, 0), App.Vector(0, 0, 1), 1.6), False)
sketch16.addConstraint([
    Sketcher.Constraint("Diameter", 0, Q("0.125 in")),
    Sketcher.Constraint("DistanceY", -1, 1, 0, 3, Q("16 in")),
    Sketcher.Constraint("DistanceX", 0, 3, -1, 1, Q("2.5 in")),
])

additiveloft = body3.newObject("PartDesign::AdditiveLoft", "AdditiveLoft")
additiveloft.Profile = sketch15
additiveloft.Sections = [sketch16]
doc.recompute()

boolean2 = body3.newObject("PartDesign::Boolean", "Boolean001")
boolean2.Type = "Fuse"
boolean2.addObjects([body6])

sketch17 = body3.newObject("Sketcher::SketchObject", "Sketch016")
sketch17.AttachmentSupport = (doc.getObject("YZ_Plane002"), [""])
sketch17.MapMode = "FlatFace"
sketch17.AttachmentOffset = App.Placement(App.Vector(0, 0, 3.135 * 25.4), App.Rotation())
sketch17.addGeometry(Part.Circle(App.Vector(12.7, 406.4, 0), App.Vector(0, 0, 1), 4.8), False)
sketch17.addConstraint([
    Sketcher.Constraint("Diameter", 0, Q("0.375 in")),
    Sketcher.Constraint("DistanceY", -1, 1, 0, 3, Q("16 in")),
    Sketcher.Constraint("DistanceX", -1, 1, 0, 3, Q("0.5 in")),
])

sketch18 = body3.newObject("Sketcher::SketchObject", "Sketch017")
sketch18.AttachmentSupport = (doc.getObject("YZ_Plane002"), [""])
sketch18.MapMode = "FlatFace"
sketch18.AttachmentOffset = App.Placement(App.Vector(0, 0, 3.325 * 25.4), App.Rotation())
sketch18.addGeometry(Part.Circle(App.Vector(12.7, 406.4, 0), App.Vector(0, 0, 1), 1.6), False)
sketch18.addConstraint([
    Sketcher.Constraint("Diameter", 0, Q("0.125 in")),
    Sketcher.Constraint("DistanceY", -1, 1, 0, 3, Q("16 in")),
    Sketcher.Constraint("DistanceX", -1, 1, 0, 3, Q("0.5 in")),
])

additiveloft2 = body3.newObject("PartDesign::AdditiveLoft", "AdditiveLoft001")
additiveloft2.Profile = sketch17
additiveloft2.Sections = [sketch18]
doc.recompute()

boolean3 = body3.newObject("PartDesign::Boolean", "Boolean002")
boolean3.Type = "Fuse"
boolean3.addObjects([body8])

sketch19 = body3.newObject("Sketcher::SketchObject", "Sketch018")
sketch19.AttachmentSupport = (doc.getObject("YZ_Plane002"), [""])
sketch19.MapMode = "FlatFace"
sketch19.AttachmentOffset = App.Placement(App.Vector(0, 0, 3.135 * 25.4), App.Rotation())
sketch19.addGeometry(Part.Circle(App.Vector(-63.5, 320.7, 0), App.Vector(0, 0, 1), 4.8), False)
sketch19.addConstraint([
    Sketcher.Constraint("Diameter", 0, Q("0.375 in")),
    Sketcher.Constraint("DistanceX", 0, 3, -1, 1, Q("2.5 in")),
    Sketcher.Constraint("DistanceY", -1, 1, 0, 3, Q("12.625 in")),
])

sketch20 = body3.newObject("Sketcher::SketchObject", "Sketch019")
sketch20.AttachmentSupport = (doc.getObject("YZ_Plane002"), [""])
sketch20.MapMode = "FlatFace"
sketch20.AttachmentOffset = App.Placement(App.Vector(0, 0, 3.325 * 25.4), App.Rotation())
sketch20.addGeometry(Part.Circle(App.Vector(-63.5, 320.7, 0), App.Vector(0, 0, 1), 1.6), False)
sketch20.addConstraint([
    Sketcher.Constraint("Diameter", 0, Q("0.125 in")),
    Sketcher.Constraint("DistanceX", 0, 3, -1, 1, Q("2.5 in")),
    Sketcher.Constraint("DistanceY", -1, 1, 0, 3, Q("12.625 in")),
])

additiveloft3 = body3.newObject("PartDesign::AdditiveLoft", "AdditiveLoft002")
additiveloft3.Profile = sketch19
additiveloft3.Sections = [sketch20]
doc.recompute()

boolean4 = body3.newObject("PartDesign::Boolean", "Boolean003")
boolean4.Type = "Fuse"
boolean4.addObjects([body9])

sketch21 = body3.newObject("Sketcher::SketchObject", "Sketch020")
sketch21.AttachmentSupport = (doc.getObject("YZ_Plane002"), [""])
sketch21.MapMode = "FlatFace"
sketch21.AttachmentOffset = App.Placement(App.Vector(0, 0, 3.325 * 25.4), App.Rotation())
sketch21.addGeometry(Part.Circle(App.Vector(12.7, 320.7, 0), App.Vector(0, 0, 1), 1.6), False)
sketch21.addConstraint([
    Sketcher.Constraint("Diameter", 0, Q("0.125 in")),
    Sketcher.Constraint("DistanceX", -1, 1, 0, 3, Q("0.5 in")),
    Sketcher.Constraint("DistanceY", -1, 1, 0, 3, Q("12.625 in")),
])

sketch22 = body3.newObject("Sketcher::SketchObject", "Sketch021")
sketch22.AttachmentSupport = (doc.getObject("YZ_Plane002"), [""])
sketch22.MapMode = "FlatFace"
sketch22.AttachmentOffset = App.Placement(App.Vector(0, 0, 3.135 * 25.4), App.Rotation())
sketch22.addGeometry(Part.Circle(App.Vector(12.7, 320.7, 0), App.Vector(0, 0, 1), 4.8), False)
sketch22.addConstraint([
    Sketcher.Constraint("Diameter", 0, Q("0.375 in")),
    Sketcher.Constraint("DistanceX", -1, 1, 0, 3, Q("0.5 in")),
    Sketcher.Constraint("DistanceY", -1, 1, 0, 3, Q("12.625 in")),
])

additiveloft4 = body3.newObject("PartDesign::AdditiveLoft", "AdditiveLoft003")
additiveloft4.Profile = sketch21
additiveloft4.Sections = [sketch22]
doc.recompute()

boolean5 = body3.newObject("PartDesign::Boolean", "Boolean004")
boolean5.Type = "Fuse"
boolean5.addObjects([body11])

sketch23 = body3.newObject("Sketcher::SketchObject", "Sketch022")
sketch23.AttachmentSupport = (doc.getObject("YZ_Plane002"), [""])
sketch23.MapMode = "FlatFace"
sketch23.AttachmentOffset = App.Placement(App.Vector(0, 0, 3.325 * 25.4), App.Rotation())
sketch23.addGeometry(Part.Circle(App.Vector(-63.5, 234.9, 0), App.Vector(0, 0, 1), 1.6), False)
sketch23.addConstraint([
    Sketcher.Constraint("Diameter", 0, Q("0.125 in")),
    Sketcher.Constraint("DistanceX", 0, 3, -1, 1, Q("2.5 in")),
    Sketcher.Constraint("DistanceY", -1, 1, 0, 3, Q("9.25 in")),
])

sketch24 = body3.newObject("Sketcher::SketchObject", "Sketch023")
sketch24.AttachmentSupport = (doc.getObject("YZ_Plane002"), [""])
sketch24.MapMode = "FlatFace"
sketch24.AttachmentOffset = App.Placement(App.Vector(0, 0, 3.135 * 25.4), App.Rotation())
sketch24.addGeometry(Part.Circle(App.Vector(-63.5, 234.9, 0), App.Vector(0, 0, 1), 4.8), False)
sketch24.addConstraint([
    Sketcher.Constraint("Diameter", 0, Q("0.375 in")),
    Sketcher.Constraint("DistanceX", 0, 3, -1, 1, Q("2.5 in")),
    Sketcher.Constraint("DistanceY", -1, 1, 0, 3, Q("9.25 in")),
])

additiveloft5 = body3.newObject("PartDesign::AdditiveLoft", "AdditiveLoft004")
additiveloft5.Profile = sketch23
additiveloft5.Sections = [sketch24]
doc.recompute()

boolean6 = body3.newObject("PartDesign::Boolean", "Boolean005")
boolean6.Type = "Fuse"
boolean6.addObjects([body10])

sketch25 = body3.newObject("Sketcher::SketchObject", "Sketch024")
sketch25.AttachmentSupport = (doc.getObject("YZ_Plane002"), [""])
sketch25.MapMode = "FlatFace"
sketch25.AttachmentOffset = App.Placement(App.Vector(0, 0, 3.135 * 25.4), App.Rotation())
sketch25.addGeometry(Part.Circle(App.Vector(12.7, 234.9, 0), App.Vector(0, 0, 1), 4.8), False)
sketch25.addConstraint([
    Sketcher.Constraint("Diameter", 0, Q("0.375 in")),
    Sketcher.Constraint("DistanceX", -1, 1, 0, 3, Q("0.5 in")),
    Sketcher.Constraint("DistanceY", -1, 1, 0, 3, Q("9.25 in")),
])

sketch26 = body3.newObject("Sketcher::SketchObject", "Sketch025")
sketch26.AttachmentSupport = (doc.getObject("YZ_Plane002"), [""])
sketch26.MapMode = "FlatFace"
sketch26.AttachmentOffset = App.Placement(App.Vector(0, 0, 3.325 * 25.4), App.Rotation())
sketch26.addGeometry(Part.Circle(App.Vector(12.7, 234.9, 0), App.Vector(0, 0, 1), 1.6), False)
sketch26.addConstraint([
    Sketcher.Constraint("Diameter", 0, Q("0.125 in")),
    Sketcher.Constraint("DistanceX", -1, 1, 0, 3, Q("0.5 in")),
    Sketcher.Constraint("DistanceY", -1, 1, 0, 3, Q("9.25 in")),
])

additiveloft6 = body3.newObject("PartDesign::AdditiveLoft", "AdditiveLoft005")
additiveloft6.Profile = sketch25
additiveloft6.Sections = [sketch26]
doc.recompute()

boolean7 = body3.newObject("PartDesign::Boolean", "Boolean006")
boolean7.Type = "Fuse"
boolean7.addObjects([body12])

sketch27 = body3.newObject("Sketcher::SketchObject", "Sketch026")
sketch27.AttachmentSupport = (doc.getObject("YZ_Plane002"), [""])
sketch27.MapMode = "FlatFace"
sketch27.AttachmentOffset = App.Placement(App.Vector(0, 0, 3.325 * 25.4), App.Rotation())
sketch27.addGeometry(Part.Circle(App.Vector(12.7, 149.2, 0), App.Vector(0, 0, 1), 1.6), False)
sketch27.addConstraint([
    Sketcher.Constraint("Diameter", 0, Q("0.125 in")),
    Sketcher.Constraint("DistanceX", -1, 1, 0, 3, Q("0.5 in")),
    Sketcher.Constraint("DistanceY", -1, 1, 0, 3, Q("5.875 in")),
])

sketch28 = body3.newObject("Sketcher::SketchObject", "Sketch027")
sketch28.AttachmentSupport = (doc.getObject("YZ_Plane002"), [""])
sketch28.MapMode = "FlatFace"
sketch28.AttachmentOffset = App.Placement(App.Vector(0, 0, 3.135 * 25.4), App.Rotation())
sketch28.addGeometry(Part.Circle(App.Vector(12.7, 149.2, 0), App.Vector(0, 0, 1), 4.8), False)
sketch28.addConstraint([
    Sketcher.Constraint("Diameter", 0, Q("0.375 in")),
    Sketcher.Constraint("DistanceX", -1, 1, 0, 3, Q("0.5 in")),
    Sketcher.Constraint("DistanceY", -1, 1, 0, 3, Q("5.875 in")),
])

additiveloft7 = body3.newObject("PartDesign::AdditiveLoft", "AdditiveLoft006")
additiveloft7.Profile = sketch27
additiveloft7.Sections = [sketch28]
doc.recompute()

boolean8 = body3.newObject("PartDesign::Boolean", "Boolean007")
boolean8.Type = "Fuse"
boolean8.addObjects([body13])

sketch29 = body3.newObject("Sketcher::SketchObject", "Sketch028")
sketch29.AttachmentSupport = (doc.getObject("YZ_Plane002"), [""])
sketch29.MapMode = "FlatFace"
sketch29.AttachmentOffset = App.Placement(App.Vector(0, 0, 3.325 * 25.4), App.Rotation())
sketch29.addGeometry(Part.Circle(App.Vector(-63.5, 149.2, 0), App.Vector(0, 0, 1), 1.6), False)
sketch29.addConstraint([
    Sketcher.Constraint("Diameter", 0, Q("0.125 in")),
    Sketcher.Constraint("DistanceX", 0, 3, -1, 1, Q("2.5 in")),
    Sketcher.Constraint("DistanceY", -1, 1, 0, 3, Q("5.875 in")),
])

sketch30 = body3.newObject("Sketcher::SketchObject", "Sketch029")
sketch30.AttachmentSupport = (doc.getObject("YZ_Plane002"), [""])
sketch30.MapMode = "FlatFace"
sketch30.AttachmentOffset = App.Placement(App.Vector(0, 0, 3.135 * 25.4), App.Rotation())
sketch30.addGeometry(Part.Circle(App.Vector(-63.5, 149.2, 0), App.Vector(0, 0, 1), 4.8), False)
sketch30.addConstraint([
    Sketcher.Constraint("Diameter", 0, Q("0.375 in")),
    Sketcher.Constraint("DistanceX", 0, 3, -1, 1, Q("2.5 in")),
    Sketcher.Constraint("DistanceY", -1, 1, 0, 3, Q("5.875 in")),
])

additiveloft8 = body3.newObject("PartDesign::AdditiveLoft", "AdditiveLoft007")
additiveloft8.Profile = sketch29
additiveloft8.Sections = [sketch30]
body14 = doc.addObject("PartDesign::Body", "Body013")
doc.recompute()

mirroring = doc.addObject("Part::Mirroring", "Mirroring")
mirroring.Source = body3
mirroring.Base = App.Vector(0, 0, 0)
mirroring.Normal = App.Vector(1, 0, 0)
body14.BaseFeature = mirroring
doc.recompute()
body2.Visibility = False
mirroring.Visibility = False

doc.recompute()
